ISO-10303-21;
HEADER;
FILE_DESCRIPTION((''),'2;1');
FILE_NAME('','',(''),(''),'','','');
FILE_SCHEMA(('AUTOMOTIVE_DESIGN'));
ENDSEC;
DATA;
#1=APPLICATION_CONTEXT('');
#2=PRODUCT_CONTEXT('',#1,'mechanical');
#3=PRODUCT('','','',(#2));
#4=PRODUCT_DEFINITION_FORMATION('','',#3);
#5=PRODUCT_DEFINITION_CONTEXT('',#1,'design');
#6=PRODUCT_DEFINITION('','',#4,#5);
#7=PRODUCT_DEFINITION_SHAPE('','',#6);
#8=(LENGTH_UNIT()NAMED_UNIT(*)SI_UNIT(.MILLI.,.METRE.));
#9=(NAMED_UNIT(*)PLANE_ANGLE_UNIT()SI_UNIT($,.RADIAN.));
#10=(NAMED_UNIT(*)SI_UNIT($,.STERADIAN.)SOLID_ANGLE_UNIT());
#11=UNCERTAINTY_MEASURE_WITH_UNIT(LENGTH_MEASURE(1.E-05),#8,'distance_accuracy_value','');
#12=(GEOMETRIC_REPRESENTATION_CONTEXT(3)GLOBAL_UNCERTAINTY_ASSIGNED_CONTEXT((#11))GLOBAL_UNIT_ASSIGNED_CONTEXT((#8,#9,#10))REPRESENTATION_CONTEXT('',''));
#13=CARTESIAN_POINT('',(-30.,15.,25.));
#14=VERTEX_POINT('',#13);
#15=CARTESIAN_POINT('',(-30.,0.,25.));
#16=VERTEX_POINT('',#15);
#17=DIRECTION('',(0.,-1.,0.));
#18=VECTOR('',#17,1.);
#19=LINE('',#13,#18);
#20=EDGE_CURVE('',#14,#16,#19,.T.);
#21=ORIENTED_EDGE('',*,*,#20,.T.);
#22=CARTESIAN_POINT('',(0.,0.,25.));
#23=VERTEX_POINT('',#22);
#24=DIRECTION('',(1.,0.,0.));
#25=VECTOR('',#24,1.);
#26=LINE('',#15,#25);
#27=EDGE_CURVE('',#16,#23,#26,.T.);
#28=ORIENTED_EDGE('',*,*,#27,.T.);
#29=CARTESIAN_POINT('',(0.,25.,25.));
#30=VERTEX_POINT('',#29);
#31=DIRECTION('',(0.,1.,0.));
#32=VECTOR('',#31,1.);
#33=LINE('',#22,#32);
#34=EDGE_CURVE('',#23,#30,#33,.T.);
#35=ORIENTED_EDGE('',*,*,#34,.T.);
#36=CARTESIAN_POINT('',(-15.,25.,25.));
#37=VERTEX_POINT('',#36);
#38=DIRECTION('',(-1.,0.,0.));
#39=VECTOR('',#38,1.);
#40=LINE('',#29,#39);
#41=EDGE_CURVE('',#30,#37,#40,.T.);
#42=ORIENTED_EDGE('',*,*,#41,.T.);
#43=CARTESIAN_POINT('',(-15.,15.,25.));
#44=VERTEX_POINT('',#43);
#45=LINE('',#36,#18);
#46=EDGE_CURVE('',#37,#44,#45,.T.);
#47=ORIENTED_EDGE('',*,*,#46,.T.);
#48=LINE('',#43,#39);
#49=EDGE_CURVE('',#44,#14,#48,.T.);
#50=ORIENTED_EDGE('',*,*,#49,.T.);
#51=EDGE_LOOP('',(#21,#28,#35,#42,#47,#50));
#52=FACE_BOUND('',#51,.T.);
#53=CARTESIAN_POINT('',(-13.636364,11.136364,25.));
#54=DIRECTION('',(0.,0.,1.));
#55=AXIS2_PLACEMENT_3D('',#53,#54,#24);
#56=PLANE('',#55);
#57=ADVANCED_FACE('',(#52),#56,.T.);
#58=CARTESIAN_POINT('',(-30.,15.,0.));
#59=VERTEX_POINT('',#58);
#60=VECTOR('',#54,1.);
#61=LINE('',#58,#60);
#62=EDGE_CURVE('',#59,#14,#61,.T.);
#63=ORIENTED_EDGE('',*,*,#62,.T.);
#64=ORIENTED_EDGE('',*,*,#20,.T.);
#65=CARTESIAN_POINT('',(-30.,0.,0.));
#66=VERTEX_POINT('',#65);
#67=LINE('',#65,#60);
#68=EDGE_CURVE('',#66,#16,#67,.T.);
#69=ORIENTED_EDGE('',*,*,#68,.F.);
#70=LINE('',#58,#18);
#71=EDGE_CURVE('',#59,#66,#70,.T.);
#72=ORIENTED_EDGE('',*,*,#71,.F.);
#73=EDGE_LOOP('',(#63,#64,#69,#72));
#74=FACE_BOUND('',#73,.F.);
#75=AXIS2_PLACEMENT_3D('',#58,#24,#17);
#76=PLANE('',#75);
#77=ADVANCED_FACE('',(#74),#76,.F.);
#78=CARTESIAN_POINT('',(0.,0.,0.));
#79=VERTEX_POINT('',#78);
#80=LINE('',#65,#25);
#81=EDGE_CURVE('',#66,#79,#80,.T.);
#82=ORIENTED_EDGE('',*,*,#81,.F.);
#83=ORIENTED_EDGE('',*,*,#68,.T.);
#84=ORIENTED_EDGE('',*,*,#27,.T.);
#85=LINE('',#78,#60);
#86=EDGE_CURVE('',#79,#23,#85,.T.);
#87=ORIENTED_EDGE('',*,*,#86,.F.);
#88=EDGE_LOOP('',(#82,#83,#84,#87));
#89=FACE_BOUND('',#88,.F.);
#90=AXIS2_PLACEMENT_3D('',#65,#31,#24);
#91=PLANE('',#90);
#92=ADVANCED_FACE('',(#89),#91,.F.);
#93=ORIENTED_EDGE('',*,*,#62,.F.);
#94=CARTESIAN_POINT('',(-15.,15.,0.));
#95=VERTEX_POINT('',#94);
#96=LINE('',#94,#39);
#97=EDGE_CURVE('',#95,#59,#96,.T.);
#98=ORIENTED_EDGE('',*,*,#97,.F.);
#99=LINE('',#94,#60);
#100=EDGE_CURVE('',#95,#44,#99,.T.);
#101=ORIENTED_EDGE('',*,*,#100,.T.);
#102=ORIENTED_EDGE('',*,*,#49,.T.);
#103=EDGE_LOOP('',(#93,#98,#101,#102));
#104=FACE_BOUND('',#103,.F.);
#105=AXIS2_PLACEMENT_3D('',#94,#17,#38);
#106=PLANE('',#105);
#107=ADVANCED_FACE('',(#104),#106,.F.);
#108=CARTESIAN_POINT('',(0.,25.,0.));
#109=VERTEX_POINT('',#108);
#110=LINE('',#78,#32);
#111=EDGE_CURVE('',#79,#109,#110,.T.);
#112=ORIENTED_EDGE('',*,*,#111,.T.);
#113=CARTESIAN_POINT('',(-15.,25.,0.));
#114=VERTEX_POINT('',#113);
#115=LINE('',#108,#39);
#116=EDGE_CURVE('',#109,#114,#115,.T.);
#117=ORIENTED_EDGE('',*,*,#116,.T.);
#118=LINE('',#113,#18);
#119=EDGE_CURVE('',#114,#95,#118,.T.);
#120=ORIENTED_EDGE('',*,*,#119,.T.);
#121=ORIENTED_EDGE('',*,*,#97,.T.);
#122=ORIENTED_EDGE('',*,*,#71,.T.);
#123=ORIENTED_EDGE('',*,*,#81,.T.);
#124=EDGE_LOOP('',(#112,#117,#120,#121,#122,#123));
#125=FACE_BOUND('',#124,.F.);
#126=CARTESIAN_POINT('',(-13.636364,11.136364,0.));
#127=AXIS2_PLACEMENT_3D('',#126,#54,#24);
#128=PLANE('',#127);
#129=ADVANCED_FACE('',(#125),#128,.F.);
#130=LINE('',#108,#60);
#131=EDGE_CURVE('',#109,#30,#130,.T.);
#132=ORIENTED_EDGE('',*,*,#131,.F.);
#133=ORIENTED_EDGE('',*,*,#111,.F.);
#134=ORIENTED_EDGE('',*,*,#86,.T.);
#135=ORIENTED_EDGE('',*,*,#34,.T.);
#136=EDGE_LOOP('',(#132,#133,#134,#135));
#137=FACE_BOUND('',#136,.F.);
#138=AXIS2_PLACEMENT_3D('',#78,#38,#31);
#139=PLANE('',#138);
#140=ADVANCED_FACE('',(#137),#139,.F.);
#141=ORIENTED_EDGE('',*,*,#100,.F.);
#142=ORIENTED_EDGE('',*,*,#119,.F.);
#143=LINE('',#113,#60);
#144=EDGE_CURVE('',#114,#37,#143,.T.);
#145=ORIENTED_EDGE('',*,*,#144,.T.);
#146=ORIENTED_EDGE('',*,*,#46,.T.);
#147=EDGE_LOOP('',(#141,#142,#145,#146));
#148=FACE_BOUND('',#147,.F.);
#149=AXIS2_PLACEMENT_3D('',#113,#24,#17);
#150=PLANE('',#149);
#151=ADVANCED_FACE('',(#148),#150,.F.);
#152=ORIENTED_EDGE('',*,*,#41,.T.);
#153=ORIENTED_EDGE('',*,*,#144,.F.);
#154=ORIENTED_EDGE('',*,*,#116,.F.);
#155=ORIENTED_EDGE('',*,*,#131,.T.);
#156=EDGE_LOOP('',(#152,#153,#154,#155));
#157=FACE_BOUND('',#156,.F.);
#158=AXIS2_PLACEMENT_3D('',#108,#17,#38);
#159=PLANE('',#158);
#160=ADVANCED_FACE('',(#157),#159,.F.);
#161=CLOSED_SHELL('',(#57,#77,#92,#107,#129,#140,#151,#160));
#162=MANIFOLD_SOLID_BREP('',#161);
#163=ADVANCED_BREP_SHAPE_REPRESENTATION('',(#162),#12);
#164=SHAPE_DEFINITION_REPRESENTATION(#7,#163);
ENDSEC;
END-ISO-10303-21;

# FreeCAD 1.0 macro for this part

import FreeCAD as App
import Part
import Sketcher
from FreeCAD import Vector
Q = App.Units.Quantity

doc = App.newDocument("Part")
params = doc.addObject("Spreadsheet::Sheet", "Params")
for row, (alias, value) in enumerate([
    ("sketch1_width", "30 mm"),
    ("sketch1_height", "25 mm"),
    ("pad1_length", "25 mm"),
], start=1):
    params.set(f"A{row}", alias)
    params.set(f"B{row}", "=" + value)
    params.setAlias(f"B{row}", alias)

body = doc.addObject("PartDesign::Body", "Body")

# Sketch on XY plane
sketch1 = doc.addObject("Sketcher::SketchObject", "Sketch")
body.addObject(sketch1)
sketch1.AttachmentSupport = (doc.XY_Plane, [""])
sketch1.MapMode = "FlatFace"
sketch1.addGeometry(Part.LineSegment(Vector(-30, 0, 0), Vector(0, 0, 0)), False)
sketch1.addGeometry(Part.LineSegment(Vector(0, 0, 0), Vector(0, 25, 0)), False)
sketch1.addGeometry(Part.LineSegment(Vector(0, 25, 0), Vector(-15, 25, 0)), False)
sketch1.addGeometry(Part.LineSegment(Vector(-15, 25, 0), Vector(-15, 15, 0)), False)
sketch1.addGeometry(Part.LineSegment(Vector(-15, 15, 0), Vector(-30, 15, 0)), False)
sketch1.addGeometry(Part.LineSegment(Vector(-30, 15, 0), Vector(-30, 0, 0)), False)
sketch1.addConstraint(Sketcher.Constraint("Coincident", 0, 2, 1, 1))
sketch1.addConstraint(Sketcher.Constraint("Coincident", 1, 2, 2, 1))
sketch1.addConstraint(Sketcher.Constraint("Coincident", 2, 2, 3, 1))
sketch1.addConstraint(Sketcher.Constraint("Coincident", 3, 2, 4, 1))
sketch1.addConstraint(Sketcher.Constraint("Coincident", 4, 2, 5, 1))
sketch1.addConstraint(Sketcher.Constraint("Coincident", 5, 2, 0, 1))
sketch1.addConstraint(Sketcher.Constraint("Horizontal", 0))
sketch1.addConstraint(Sketcher.Constraint("Vertical", 1))
sketch1.addConstraint(Sketcher.Constraint("Horizontal", 2))
sketch1.addConstraint(Sketcher.Constraint("Vertical", 3))
sketch1.addConstraint(Sketcher.Constraint("Horizontal", 4))
sketch1.addConstraint(Sketcher.Constraint("Vertical", 5))
sketch1.addConstraint(Sketcher.Constraint("Coincident", 0, 2, -1, 1))
sketch1.addConstraint(Sketcher.Constraint("Equal", 2, 4))
sketch1.addConstraint(Sketcher.Constraint("Equal", 4, 5))
sketch1.addConstraint(Sketcher.Constraint("DistanceX", 0, 1, 0, 2, Q("30 mm")))
sketch1.addConstraint(Sketcher.Constraint("DistanceY", 1, 1, 1, 2, Q("25 mm")))
sketch1.setExpression("Constraints[15]", "Params.sketch1_width")
sketch1.setExpression("Constraints[16]", "Params.sketch1_height")
pad1 = doc.addObject("PartDesign::Pad", "Pad")
body.addObject(pad1)
pad1.Profile = sketch1
pad1.setExpression("Length", "Params.pad1_length")

doc.recompute()
